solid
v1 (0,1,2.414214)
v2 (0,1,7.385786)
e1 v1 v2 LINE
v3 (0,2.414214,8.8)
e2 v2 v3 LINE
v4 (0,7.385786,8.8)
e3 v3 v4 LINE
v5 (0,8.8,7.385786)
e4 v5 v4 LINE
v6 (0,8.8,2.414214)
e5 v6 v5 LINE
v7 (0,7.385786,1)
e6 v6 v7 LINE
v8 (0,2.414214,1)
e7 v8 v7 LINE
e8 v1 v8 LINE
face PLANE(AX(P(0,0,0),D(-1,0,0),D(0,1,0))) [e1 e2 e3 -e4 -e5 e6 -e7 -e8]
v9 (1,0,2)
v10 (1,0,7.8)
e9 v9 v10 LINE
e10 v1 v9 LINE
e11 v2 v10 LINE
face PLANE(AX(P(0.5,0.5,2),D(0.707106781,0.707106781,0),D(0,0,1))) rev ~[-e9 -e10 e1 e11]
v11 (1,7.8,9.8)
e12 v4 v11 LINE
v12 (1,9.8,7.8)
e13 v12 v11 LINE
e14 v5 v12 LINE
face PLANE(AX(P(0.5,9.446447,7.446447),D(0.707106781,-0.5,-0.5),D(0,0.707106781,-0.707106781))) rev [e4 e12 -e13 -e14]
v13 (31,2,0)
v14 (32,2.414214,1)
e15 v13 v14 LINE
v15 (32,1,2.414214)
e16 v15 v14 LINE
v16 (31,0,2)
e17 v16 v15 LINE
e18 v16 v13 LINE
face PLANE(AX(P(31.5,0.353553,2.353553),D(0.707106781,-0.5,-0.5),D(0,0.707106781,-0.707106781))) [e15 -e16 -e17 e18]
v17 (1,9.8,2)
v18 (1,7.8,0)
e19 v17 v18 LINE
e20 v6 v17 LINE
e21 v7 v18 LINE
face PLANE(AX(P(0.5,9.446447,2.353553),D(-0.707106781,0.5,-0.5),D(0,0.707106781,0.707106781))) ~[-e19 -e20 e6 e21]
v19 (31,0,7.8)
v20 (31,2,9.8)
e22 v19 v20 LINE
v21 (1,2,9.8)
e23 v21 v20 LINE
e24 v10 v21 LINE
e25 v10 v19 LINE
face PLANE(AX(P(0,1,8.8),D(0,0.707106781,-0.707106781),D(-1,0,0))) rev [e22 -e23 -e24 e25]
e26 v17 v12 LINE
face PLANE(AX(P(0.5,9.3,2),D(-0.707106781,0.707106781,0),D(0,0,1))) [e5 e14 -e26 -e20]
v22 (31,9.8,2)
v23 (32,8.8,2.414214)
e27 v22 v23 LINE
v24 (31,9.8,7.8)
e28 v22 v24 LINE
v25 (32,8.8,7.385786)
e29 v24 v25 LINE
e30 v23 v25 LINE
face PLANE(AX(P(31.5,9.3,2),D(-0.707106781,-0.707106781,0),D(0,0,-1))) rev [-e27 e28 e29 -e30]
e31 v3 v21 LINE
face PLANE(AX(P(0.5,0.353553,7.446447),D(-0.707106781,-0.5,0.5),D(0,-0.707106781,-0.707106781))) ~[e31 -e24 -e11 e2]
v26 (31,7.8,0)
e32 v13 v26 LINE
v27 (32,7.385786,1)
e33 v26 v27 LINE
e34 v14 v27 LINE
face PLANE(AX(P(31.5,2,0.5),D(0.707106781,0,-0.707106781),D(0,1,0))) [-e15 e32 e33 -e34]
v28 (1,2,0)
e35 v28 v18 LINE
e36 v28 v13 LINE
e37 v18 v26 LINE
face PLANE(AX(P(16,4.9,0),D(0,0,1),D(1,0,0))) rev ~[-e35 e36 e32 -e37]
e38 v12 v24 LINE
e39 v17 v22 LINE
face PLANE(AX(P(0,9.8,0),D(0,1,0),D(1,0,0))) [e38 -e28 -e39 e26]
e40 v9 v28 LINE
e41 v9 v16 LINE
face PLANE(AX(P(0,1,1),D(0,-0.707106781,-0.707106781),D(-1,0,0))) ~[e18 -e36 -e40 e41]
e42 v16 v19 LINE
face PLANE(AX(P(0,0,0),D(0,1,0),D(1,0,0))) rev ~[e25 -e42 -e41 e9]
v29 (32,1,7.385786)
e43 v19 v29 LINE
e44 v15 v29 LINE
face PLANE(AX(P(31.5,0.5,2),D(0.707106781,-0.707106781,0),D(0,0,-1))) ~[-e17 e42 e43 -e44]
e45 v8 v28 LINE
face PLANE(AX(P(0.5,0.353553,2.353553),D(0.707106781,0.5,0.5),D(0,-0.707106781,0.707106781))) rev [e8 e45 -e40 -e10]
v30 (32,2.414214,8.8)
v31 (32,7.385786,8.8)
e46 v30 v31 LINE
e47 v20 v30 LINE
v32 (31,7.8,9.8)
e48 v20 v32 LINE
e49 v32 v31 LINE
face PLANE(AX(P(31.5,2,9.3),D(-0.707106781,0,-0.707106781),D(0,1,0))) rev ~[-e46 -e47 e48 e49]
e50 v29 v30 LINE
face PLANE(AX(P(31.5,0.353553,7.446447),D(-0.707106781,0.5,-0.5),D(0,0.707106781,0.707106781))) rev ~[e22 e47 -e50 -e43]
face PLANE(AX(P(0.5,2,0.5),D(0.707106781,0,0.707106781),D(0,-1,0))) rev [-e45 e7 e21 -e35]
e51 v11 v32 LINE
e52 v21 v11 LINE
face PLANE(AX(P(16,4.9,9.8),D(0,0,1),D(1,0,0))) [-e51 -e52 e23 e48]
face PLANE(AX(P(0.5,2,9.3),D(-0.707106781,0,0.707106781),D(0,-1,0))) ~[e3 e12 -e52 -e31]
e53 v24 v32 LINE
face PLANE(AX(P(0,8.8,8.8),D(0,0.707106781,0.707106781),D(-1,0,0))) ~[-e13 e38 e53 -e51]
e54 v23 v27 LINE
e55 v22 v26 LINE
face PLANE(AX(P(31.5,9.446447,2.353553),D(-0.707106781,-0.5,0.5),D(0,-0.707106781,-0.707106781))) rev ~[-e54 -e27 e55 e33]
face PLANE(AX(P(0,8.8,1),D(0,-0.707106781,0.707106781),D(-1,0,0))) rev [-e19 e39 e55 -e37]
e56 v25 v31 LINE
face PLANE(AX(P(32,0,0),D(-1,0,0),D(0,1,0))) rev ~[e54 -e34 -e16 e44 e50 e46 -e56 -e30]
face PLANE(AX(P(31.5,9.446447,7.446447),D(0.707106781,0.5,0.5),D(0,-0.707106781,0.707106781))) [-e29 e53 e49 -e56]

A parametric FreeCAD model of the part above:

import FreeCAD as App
import Part
import Sketcher
from FreeCAD import Vector
Q = App.Units.Quantity


def edges_at(feature, points):
    """Names of the edges that pass closest to the given points."""
    edges = feature.Shape.Edges
    near = lambda p: min(range(len(edges)), key=lambda i: edges[i].distToShape(Part.Vertex(*p))[0])
    return sorted({f"Edge{near(p) + 1}" for p in points})

doc = App.newDocument("Part")
body = doc.addObject("PartDesign::Body", "Body")

# Sketch on XY plane
sketch1 = body.newObject("Sketcher::SketchObject", "Sketch")
sketch1.AttachmentSupport = (doc.getObject("XY_Plane"), [""])
sketch1.MapMode = "FlatFace"
sketch1.addGeometry(Part.LineSegment(Vector(0, 9.8, 0), Vector(0, 0, 0)), False)
sketch1.addGeometry(Part.LineSegment(Vector(0, 0, 0), Vector(32, 0, 0)), False)
sketch1.addGeometry(Part.LineSegment(Vector(32, 0, 0), Vector(32, 9.8, 0)), False)
sketch1.addGeometry(Part.LineSegment(Vector(32, 9.8, 0), Vector(0, 9.8, 0)), False)
sketch1.addConstraint(Sketcher.Constraint("Coincident", 0, 2, 1, 1))
sketch1.addConstraint(Sketcher.Constraint("Coincident", 1, 2, 2, 1))
sketch1.addConstraint(Sketcher.Constraint("Coincident", 2, 2, 3, 1))
sketch1.addConstraint(Sketcher.Constraint("Coincident", 3, 2, 0, 1))
sketch1.addConstraint(Sketcher.Constraint("Vertical", 0))
sketch1.addConstraint(Sketcher.Constraint("Horizontal", 1))
sketch1.addConstraint(Sketcher.Constraint("Vertical", 2))
sketch1.addConstraint(Sketcher.Constraint("Horizontal", 3))
sketch1.addConstraint(Sketcher.Constraint("Coincident", 0, 2, -1, 1))
sketch1.addConstraint(Sketcher.Constraint("DistanceX", 1, 1, 1, 2, Q("32 mm")))
sketch1.addConstraint(Sketcher.Constraint("DistanceY", 0, 2, 0, 1, Q("9.8 mm")))
pad1 = body.newObject("PartDesign::Pad", "Pad")
pad1.Profile = sketch1
pad1.Length = 9.8
doc.recompute()

chamfer = body.newObject("PartDesign::Chamfer", "Chamfer")
chamfer.Base = (pad1, edges_at(pad1, [
    (16, 0, 0),
    (16, 0, 9.8),
    (16, 9.8, 0),
    (16, 9.8, 9.8),
]))
chamfer.Size = 2
doc.recompute()

chamfer2 = body.newObject("PartDesign::Chamfer", "Chamfer001")
chamfer2.Base = (chamfer, edges_at(chamfer, [
    (0, 0, 4.9),
    (0, 1, 1),
    (0, 1, 8.8),
    (0, 4.9, 0),
    (0, 4.9, 9.8),
    (0, 8.8, 1),
    (0, 8.8, 8.8),
    (0, 9.8, 4.9),
]))
chamfer2.Size = 1
doc.recompute()

chamfer3 = body.newObject("PartDesign::Chamfer", "Chamfer002")
chamfer3.Base = (chamfer2, edges_at(chamfer2, [
    (32, 0, 4.9),
    (32, 1, 1),
    (32, 1, 8.8),
    (32, 4.9, 0),
    (32, 4.9, 9.8),
    (32, 8.8, 1),
    (32, 8.8, 8.8),
    (32, 9.8, 4.9),
]))
chamfer3.Size = 1

doc.recompute()
